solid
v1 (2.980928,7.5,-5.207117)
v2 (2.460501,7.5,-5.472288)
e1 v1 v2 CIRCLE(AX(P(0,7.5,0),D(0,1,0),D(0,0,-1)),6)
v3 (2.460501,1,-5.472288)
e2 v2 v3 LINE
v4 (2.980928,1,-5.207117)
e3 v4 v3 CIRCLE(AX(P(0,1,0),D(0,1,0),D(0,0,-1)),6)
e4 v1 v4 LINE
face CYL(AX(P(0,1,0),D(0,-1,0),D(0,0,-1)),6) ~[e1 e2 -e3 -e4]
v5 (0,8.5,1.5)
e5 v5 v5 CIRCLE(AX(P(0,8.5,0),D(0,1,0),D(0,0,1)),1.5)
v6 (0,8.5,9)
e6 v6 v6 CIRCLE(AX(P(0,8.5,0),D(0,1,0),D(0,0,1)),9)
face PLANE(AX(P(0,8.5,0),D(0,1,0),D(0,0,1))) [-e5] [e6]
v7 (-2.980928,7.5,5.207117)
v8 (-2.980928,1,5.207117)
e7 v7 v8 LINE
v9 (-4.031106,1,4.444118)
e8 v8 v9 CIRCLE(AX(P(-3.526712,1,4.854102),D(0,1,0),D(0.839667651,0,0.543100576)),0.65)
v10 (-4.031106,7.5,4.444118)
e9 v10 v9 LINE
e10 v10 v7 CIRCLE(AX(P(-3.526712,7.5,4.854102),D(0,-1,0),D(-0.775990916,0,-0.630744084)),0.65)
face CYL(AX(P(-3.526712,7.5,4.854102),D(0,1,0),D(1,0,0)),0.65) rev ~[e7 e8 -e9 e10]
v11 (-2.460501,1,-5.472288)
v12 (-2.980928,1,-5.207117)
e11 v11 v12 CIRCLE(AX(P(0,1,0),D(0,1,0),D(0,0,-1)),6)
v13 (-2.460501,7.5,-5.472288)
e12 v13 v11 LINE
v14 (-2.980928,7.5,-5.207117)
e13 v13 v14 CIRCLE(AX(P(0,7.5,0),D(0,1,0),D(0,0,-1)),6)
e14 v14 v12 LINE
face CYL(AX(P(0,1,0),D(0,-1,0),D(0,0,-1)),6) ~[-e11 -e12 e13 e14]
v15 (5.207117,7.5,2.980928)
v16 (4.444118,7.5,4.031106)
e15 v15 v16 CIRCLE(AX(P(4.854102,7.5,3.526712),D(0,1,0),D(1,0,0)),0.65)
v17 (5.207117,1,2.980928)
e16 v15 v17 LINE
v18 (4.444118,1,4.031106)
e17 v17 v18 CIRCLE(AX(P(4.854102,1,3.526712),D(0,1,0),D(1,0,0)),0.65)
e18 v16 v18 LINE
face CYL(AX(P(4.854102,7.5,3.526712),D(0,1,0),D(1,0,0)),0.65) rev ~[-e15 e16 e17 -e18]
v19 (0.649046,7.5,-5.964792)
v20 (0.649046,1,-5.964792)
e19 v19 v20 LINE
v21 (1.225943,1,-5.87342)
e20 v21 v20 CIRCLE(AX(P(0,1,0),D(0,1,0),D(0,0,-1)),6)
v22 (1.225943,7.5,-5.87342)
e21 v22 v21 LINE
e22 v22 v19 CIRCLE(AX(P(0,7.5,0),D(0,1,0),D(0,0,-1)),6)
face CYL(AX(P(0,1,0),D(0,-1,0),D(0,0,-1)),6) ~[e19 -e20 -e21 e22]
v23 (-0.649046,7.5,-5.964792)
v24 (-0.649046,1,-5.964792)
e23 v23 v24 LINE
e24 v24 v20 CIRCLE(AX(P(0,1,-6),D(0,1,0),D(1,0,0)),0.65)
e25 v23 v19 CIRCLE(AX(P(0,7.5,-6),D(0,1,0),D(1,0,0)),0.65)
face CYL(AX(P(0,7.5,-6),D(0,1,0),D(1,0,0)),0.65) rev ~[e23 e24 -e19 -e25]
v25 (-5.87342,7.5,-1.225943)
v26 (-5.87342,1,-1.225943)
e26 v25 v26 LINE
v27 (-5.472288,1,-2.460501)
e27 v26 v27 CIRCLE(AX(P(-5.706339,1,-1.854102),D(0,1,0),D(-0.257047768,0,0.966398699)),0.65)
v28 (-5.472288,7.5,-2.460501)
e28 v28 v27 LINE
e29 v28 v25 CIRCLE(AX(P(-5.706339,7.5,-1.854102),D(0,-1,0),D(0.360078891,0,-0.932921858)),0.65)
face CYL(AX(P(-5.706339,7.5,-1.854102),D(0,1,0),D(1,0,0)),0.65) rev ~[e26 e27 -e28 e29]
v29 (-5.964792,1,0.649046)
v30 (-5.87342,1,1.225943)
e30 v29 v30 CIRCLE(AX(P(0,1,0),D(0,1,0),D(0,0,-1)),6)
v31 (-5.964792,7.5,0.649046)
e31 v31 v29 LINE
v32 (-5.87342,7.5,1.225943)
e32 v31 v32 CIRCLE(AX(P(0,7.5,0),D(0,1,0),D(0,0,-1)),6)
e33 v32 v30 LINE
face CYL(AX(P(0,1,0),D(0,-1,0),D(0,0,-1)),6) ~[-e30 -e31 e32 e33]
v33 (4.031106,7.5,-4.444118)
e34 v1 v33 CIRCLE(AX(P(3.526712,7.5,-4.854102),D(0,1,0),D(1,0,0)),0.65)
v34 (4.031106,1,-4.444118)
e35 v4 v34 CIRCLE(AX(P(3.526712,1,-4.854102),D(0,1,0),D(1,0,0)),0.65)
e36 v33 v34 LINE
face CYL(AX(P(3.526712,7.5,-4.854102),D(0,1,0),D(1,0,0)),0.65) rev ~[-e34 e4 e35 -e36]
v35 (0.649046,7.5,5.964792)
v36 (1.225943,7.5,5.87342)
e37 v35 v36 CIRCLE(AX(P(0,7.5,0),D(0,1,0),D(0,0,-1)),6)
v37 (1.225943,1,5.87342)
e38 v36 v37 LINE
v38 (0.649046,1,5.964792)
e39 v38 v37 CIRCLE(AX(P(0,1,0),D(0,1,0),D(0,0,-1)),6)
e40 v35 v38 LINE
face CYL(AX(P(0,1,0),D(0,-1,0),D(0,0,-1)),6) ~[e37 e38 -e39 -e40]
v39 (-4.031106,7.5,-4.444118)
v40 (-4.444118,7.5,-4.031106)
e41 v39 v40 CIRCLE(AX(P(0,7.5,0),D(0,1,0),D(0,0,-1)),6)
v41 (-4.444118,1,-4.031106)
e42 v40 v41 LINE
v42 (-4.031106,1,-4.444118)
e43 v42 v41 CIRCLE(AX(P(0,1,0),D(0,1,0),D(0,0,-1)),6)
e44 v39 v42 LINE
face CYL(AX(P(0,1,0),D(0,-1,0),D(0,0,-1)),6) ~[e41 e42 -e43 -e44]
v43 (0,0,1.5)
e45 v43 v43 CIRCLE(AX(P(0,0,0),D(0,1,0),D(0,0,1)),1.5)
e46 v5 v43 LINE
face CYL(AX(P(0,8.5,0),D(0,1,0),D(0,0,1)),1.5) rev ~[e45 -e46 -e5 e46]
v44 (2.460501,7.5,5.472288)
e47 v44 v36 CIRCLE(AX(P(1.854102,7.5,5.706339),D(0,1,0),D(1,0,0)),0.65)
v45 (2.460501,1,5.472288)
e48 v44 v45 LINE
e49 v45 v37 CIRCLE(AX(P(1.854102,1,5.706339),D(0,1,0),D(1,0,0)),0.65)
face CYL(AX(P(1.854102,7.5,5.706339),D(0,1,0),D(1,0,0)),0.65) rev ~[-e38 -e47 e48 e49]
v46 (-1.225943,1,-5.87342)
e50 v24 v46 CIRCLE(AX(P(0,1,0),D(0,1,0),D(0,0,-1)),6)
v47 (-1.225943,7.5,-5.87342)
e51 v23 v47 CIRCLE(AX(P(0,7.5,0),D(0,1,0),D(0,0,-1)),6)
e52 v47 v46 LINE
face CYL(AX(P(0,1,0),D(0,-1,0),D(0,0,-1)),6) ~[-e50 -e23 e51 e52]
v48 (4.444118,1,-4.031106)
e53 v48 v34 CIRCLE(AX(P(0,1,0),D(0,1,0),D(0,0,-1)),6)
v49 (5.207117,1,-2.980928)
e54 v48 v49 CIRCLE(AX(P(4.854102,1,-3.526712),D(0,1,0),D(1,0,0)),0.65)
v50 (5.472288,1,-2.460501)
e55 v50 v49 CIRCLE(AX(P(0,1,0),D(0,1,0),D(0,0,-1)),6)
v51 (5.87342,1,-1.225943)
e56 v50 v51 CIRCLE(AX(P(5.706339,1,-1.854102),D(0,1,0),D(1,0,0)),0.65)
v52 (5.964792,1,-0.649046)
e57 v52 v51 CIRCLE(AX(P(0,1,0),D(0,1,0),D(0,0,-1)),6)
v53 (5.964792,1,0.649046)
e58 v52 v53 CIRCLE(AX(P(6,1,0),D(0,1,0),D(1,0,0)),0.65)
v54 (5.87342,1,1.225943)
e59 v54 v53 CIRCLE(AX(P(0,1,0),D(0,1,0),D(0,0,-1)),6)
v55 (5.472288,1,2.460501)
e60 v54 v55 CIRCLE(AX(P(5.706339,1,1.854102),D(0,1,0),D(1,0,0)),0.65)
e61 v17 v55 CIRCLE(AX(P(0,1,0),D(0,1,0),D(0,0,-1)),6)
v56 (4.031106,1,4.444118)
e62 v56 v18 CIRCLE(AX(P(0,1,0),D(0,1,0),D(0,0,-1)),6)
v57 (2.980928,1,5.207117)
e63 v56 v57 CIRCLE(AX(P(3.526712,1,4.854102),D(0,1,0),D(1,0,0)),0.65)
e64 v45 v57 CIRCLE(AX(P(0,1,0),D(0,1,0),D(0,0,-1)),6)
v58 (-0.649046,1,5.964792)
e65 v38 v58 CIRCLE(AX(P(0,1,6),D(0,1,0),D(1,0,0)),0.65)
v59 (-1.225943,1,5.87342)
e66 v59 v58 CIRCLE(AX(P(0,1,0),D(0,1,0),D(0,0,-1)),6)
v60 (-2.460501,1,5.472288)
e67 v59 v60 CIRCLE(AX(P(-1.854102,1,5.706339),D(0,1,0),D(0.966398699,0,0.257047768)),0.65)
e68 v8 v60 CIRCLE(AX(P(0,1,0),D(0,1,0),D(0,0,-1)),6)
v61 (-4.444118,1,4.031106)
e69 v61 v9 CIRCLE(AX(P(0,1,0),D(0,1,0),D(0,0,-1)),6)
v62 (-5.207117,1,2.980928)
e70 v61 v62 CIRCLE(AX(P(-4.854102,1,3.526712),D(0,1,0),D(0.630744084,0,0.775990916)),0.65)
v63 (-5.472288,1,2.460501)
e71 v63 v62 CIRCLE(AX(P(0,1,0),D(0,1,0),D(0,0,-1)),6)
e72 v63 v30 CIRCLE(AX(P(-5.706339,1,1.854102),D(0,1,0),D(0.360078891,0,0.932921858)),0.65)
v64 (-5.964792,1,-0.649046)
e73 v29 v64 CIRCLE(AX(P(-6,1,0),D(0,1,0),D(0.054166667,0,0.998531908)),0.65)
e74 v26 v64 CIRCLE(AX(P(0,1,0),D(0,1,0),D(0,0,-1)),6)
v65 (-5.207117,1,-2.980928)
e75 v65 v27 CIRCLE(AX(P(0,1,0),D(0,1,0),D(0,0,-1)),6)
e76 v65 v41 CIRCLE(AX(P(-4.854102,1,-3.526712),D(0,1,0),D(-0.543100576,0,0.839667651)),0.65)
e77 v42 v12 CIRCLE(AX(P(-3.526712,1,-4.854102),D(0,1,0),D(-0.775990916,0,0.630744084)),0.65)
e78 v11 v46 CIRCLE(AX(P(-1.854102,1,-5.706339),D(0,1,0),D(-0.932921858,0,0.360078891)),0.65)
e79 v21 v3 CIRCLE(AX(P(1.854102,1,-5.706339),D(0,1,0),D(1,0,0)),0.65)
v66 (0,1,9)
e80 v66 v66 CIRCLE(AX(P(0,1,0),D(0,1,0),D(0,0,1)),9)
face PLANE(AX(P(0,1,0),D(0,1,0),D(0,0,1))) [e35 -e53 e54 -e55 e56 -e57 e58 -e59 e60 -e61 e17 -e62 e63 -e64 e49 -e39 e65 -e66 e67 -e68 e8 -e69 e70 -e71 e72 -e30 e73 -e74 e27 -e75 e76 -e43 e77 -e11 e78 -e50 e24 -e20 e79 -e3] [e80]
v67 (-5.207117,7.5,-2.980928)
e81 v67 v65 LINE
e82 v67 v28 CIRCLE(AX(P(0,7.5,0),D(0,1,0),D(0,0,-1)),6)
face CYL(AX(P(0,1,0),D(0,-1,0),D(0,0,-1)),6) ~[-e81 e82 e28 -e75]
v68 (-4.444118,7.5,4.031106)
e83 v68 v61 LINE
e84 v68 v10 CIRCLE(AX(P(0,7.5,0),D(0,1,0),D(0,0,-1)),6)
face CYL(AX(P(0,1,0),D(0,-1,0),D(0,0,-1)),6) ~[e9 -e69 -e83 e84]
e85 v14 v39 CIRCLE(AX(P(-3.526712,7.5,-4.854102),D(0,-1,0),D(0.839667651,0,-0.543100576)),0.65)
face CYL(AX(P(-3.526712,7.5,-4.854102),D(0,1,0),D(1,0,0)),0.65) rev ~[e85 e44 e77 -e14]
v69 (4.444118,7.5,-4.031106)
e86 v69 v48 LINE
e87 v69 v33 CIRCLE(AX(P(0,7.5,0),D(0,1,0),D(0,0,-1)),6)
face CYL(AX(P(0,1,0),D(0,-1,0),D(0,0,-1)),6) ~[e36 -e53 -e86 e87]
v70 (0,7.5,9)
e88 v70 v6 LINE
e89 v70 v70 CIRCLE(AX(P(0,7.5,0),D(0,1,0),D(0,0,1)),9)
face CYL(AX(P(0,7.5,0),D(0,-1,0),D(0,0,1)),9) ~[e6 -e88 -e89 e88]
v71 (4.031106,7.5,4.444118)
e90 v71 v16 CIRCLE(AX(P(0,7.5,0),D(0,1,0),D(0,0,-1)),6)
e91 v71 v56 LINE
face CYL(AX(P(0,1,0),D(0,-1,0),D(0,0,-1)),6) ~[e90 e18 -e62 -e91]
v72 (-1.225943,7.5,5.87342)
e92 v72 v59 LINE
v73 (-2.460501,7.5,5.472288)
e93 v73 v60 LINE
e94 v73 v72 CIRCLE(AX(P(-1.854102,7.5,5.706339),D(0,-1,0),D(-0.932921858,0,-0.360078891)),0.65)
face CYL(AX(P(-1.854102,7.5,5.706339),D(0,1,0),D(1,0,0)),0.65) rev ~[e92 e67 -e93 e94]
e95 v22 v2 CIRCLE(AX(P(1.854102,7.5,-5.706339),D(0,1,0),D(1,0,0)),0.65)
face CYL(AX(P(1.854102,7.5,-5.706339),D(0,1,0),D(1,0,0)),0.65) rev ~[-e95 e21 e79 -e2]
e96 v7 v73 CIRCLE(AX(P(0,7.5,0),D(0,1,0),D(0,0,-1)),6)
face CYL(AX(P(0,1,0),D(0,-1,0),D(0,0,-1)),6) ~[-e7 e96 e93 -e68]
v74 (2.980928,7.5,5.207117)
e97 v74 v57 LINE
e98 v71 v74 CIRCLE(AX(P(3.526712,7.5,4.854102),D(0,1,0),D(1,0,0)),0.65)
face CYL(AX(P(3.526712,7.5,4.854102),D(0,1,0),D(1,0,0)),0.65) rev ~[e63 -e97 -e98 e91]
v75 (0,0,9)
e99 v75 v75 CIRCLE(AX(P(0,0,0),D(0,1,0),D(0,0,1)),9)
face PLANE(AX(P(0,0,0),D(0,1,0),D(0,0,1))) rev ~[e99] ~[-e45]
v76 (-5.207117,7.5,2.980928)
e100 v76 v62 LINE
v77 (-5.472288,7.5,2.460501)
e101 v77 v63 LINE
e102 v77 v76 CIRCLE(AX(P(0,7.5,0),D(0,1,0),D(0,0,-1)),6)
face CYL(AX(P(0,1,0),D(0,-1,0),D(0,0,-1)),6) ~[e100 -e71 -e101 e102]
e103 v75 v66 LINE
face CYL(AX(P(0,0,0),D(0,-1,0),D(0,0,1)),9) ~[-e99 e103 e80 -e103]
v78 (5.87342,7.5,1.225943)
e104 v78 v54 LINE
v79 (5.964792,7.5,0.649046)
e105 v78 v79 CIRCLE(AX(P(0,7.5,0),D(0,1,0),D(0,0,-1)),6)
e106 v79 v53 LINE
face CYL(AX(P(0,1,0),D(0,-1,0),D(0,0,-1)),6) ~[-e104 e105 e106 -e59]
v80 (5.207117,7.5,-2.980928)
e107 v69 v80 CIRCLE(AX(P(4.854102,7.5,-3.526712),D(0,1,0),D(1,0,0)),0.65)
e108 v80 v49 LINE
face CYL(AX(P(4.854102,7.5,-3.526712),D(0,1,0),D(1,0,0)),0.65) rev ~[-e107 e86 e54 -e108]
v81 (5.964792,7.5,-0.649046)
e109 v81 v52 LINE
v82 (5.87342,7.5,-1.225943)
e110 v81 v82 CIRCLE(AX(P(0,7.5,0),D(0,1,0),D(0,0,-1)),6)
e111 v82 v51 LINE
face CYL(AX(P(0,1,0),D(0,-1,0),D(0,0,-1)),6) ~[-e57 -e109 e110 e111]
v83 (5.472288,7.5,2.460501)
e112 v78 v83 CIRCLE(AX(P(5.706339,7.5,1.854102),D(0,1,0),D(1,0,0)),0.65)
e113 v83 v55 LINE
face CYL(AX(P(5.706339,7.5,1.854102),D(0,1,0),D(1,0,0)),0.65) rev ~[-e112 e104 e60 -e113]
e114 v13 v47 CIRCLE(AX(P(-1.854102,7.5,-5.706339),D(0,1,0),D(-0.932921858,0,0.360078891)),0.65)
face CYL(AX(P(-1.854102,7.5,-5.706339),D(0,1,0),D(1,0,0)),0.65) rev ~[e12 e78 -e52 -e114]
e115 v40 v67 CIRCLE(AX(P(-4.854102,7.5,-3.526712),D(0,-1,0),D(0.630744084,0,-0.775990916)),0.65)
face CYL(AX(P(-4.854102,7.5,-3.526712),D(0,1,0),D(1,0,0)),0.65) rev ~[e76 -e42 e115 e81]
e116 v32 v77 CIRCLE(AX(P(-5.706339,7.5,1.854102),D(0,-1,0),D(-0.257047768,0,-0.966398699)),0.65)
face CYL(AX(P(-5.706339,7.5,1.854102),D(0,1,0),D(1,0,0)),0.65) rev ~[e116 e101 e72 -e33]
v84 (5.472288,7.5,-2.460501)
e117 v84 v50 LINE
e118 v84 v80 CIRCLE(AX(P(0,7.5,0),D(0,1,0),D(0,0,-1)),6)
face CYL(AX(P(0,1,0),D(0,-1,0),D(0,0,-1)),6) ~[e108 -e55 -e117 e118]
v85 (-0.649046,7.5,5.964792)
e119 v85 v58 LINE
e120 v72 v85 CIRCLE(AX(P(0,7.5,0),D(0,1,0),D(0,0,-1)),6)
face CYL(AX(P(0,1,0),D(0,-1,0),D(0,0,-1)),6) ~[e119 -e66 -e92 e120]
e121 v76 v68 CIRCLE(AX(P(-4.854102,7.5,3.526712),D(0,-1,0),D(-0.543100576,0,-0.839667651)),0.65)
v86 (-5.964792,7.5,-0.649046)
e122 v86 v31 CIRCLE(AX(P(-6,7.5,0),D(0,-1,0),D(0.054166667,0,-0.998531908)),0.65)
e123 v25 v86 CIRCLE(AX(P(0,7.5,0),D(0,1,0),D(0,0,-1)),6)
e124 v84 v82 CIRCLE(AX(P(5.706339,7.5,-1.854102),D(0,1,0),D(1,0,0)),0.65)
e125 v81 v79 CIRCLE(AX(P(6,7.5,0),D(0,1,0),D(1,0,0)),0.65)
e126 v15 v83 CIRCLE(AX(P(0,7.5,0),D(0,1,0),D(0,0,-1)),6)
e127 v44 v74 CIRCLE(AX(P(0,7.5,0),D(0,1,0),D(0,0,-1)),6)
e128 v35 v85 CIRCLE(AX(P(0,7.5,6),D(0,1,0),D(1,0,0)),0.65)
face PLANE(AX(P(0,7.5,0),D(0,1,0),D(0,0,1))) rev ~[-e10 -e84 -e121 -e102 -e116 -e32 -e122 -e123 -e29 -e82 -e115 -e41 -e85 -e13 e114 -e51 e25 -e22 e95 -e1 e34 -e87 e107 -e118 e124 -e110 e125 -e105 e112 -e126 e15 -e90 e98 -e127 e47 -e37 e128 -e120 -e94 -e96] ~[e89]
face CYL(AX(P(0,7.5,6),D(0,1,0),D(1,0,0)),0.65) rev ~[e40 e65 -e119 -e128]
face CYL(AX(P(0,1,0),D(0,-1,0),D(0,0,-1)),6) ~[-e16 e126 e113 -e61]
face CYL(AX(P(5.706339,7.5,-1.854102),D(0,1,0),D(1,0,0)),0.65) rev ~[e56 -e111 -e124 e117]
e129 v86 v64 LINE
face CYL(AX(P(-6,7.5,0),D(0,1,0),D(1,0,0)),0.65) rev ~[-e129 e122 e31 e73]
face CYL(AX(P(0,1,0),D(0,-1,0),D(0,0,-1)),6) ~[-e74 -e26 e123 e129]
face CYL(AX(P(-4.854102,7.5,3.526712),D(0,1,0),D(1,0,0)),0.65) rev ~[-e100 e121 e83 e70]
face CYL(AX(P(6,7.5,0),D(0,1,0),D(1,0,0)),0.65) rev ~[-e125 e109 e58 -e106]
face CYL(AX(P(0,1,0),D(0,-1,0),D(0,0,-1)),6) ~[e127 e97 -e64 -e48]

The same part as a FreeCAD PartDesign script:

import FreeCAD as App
import Part
import Sketcher

V = App.Vector

doc = App.newDocument("Part")
body = doc.addObject("PartDesign::Body", "Body")

sketch1 = doc.addObject("Sketcher::SketchObject", "Sketch")
body.addObject(sketch1)
sketch1.AttachmentSupport = (doc.XZ_Plane, [""])
sketch1.MapMode = "FlatFace"
sketch1.addGeometry(Part.Circle(V(0, 0, 0), V(0, 0, 1), 9), False)
sketch1.addConstraint(Sketcher.Constraint("Coincident", 0, 3, -1, 1))
sketch1.addConstraint(Sketcher.Constraint("Diameter", 0, 18.0))
pad1 = doc.addObject("PartDesign::Pad", "Pad")
body.addObject(pad1)
pad1.Profile = sketch1
pad1.Length = 1
pad1.Reversed = True

sketch2 = doc.addObject("Sketcher::SketchObject", "Sketch001")
body.addObject(sketch2)
sketch2.AttachmentSupport = (doc.XZ_Plane, [""])
sketch2.MapMode = "FlatFace"
sketch2.AttachmentOffset = App.Placement(V(0, 0, -1), App.Rotation())
sketch2.addGeometry(Part.Circle(V(0, 0, 0), V(0, 0, 1), 6), False)
sketch2.addConstraint(Sketcher.Constraint("Coincident", 0, 3, -1, 1))
sketch2.addConstraint(Sketcher.Constraint("Diameter", 0, 12.0))
pad2 = doc.addObject("PartDesign::Pad", "Pad001")
body.addObject(pad2)
pad2.Profile = sketch2
pad2.Length = 6.5
pad2.Reversed = True

sketch3 = doc.addObject("Sketcher::SketchObject", "Sketch002")
body.addObject(sketch3)
sketch3.AttachmentSupport = (doc.XZ_Plane, [""])
sketch3.MapMode = "FlatFace"
sketch3.AttachmentOffset = App.Placement(V(0, 0, -7.5), App.Rotation())
sketch3.addGeometry(Part.Circle(V(0, -6, 0), V(0, 0, 1), 0.7), False)
sketch3.addGeometry(Part.Circle(V(1.9, -5.7, 0), V(0, 0, 1), 0.7), False)
sketch3.addGeometry(Part.Circle(V(3.5, -4.9, 0), V(0, 0, 1), 0.7), False)
sketch3.addGeometry(Part.Circle(V(4.9, -3.5, 0), V(0, 0, 1), 0.7), False)
sketch3.addGeometry(Part.Circle(V(5.7, -1.9, 0), V(0, 0, 1), 0.7), False)
sketch3.addGeometry(Part.Circle(V(6, 0, 0), V(0, 0, 1), 0.7), False)
sketch3.addGeometry(Part.Circle(V(5.7, 1.9, 0), V(0, 0, 1), 0.7), False)
sketch3.addGeometry(Part.Circle(V(4.9, 3.5, 0), V(0, 0, 1), 0.7), False)
sketch3.addGeometry(Part.Circle(V(3.5, 4.9, 0), V(0, 0, 1), 0.7), False)
sketch3.addGeometry(Part.Circle(V(1.9, 5.7, 0), V(0, 0, 1), 0.7), False)
sketch3.addGeometry(Part.Circle(V(0, 6, 0), V(0, 0, 1), 0.7), False)
sketch3.addGeometry(Part.Circle(V(-1.9, 5.7, 0), V(0, 0, 1), 0.7), False)
sketch3.addGeometry(Part.Circle(V(-3.5, 4.9, 0), V(0, 0, 1), 0.7), False)
sketch3.addGeometry(Part.Circle(V(-4.9, 3.5, 0), V(0, 0, 1), 0.7), False)
sketch3.addGeometry(Part.Circle(V(-5.7, 1.9, 0), V(0, 0, 1), 0.7), False)
sketch3.addGeometry(Part.Circle(V(-6, 0, 0), V(0, 0, 1), 0.7), False)
sketch3.addGeometry(Part.Circle(V(-5.7, -1.9, 0), V(0, 0, 1), 0.7), False)
sketch3.addGeometry(Part.Circle(V(-4.9, -3.5, 0), V(0, 0, 1), 0.7), False)
sketch3.addGeometry(Part.Circle(V(-3.5, -4.9, 0), V(0, 0, 1), 0.7), False)
sketch3.addGeometry(Part.Circle(V(-1.9, -5.7, 0), V(0, 0, 1), 0.7), False)
sketch3.addConstraint(Sketcher.Constraint("Equal", 0, 1))
sketch3.addConstraint(Sketcher.Constraint("Equal", 1, 2))
sketch3.addConstraint(Sketcher.Constraint("Equal", 2, 3))
sketch3.addConstraint(Sketcher.Constraint("Equal", 3, 4))
sketch3.addConstraint(Sketcher.Constraint("Equal", 4, 5))
sketch3.addConstraint(Sketcher.Constraint("Equal", 5, 6))
sketch3.addConstraint(Sketcher.Constraint("Equal", 6, 7))
sketch3.addConstraint(Sketcher.Constraint("Equal", 7, 8))
sketch3.addConstraint(Sketcher.Constraint("Equal", 8, 9))
sketch3.addConstraint(Sketcher.Constraint("Equal", 9, 10))
sketch3.addConstraint(Sketcher.Constraint("Equal", 10, 11))
sketch3.addConstraint(Sketcher.Constraint("Equal", 11, 12))
sketch3.addConstraint(Sketcher.Constraint("Equal", 12, 13))
sketch3.addConstraint(Sketcher.Constraint("Equal", 13, 14))
sketch3.addConstraint(Sketcher.Constraint("Equal", 14, 15))
sketch3.addConstraint(Sketcher.Constraint("Equal", 15, 16))
sketch3.addConstraint(Sketcher.Constraint("Equal", 16, 17))
sketch3.addConstraint(Sketcher.Constraint("Equal", 17, 18))
sketch3.addConstraint(Sketcher.Constraint("Equal", 18, 19))
sketch3.addConstraint(Sketcher.Constraint("Symmetric", 0, 3, 10, 3, -1, 1))
sketch3.addConstraint(Sketcher.Constraint("Symmetric", 1, 3, 11, 3, -1, 1))
sketch3.addConstraint(Sketcher.Constraint("Symmetric", 2, 3, 12, 3, -1, 1))
sketch3.addConstraint(Sketcher.Constraint("Symmetric", 3, 3, 13, 3, -1, 1))
sketch3.addConstraint(Sketcher.Constraint("Symmetric", 4, 3, 14, 3, -1, 1))
sketch3.addConstraint(Sketcher.Constraint("Symmetric", 5, 3, 15, 3, -1, 1))
sketch3.addConstraint(Sketcher.Constraint("Symmetric", 6, 3, 16, 3, -1, 1))
sketch3.addConstraint(Sketcher.Constraint("Symmetric", 7, 3, 17, 3, -1, 1))
sketch3.addConstraint(Sketcher.Constraint("Symmetric", 8, 3, 18, 3, -1, 1))
sketch3.addConstraint(Sketcher.Constraint("Symmetric", 9, 3, 19, 3, -1, 1))
sketch3.addConstraint(Sketcher.Constraint("Symmetric", 9, 3, 11, 3, -2))
sketch3.addConstraint(Sketcher.Constraint("Symmetric", 8, 3, 12, 3, -2))
sketch3.addConstraint(Sketcher.Constraint("Symmetric", 7, 3, 13, 3, -2))
sketch3.addConstraint(Sketcher.Constraint("Symmetric", 6, 3, 14, 3, -2))
sketch3.addConstraint(Sketcher.Constraint("PointOnObject", 0, 3, -2))
sketch3.addConstraint(Sketcher.Constraint("PointOnObject", 5, 3, -1))
sketch3.addConstraint(Sketcher.Constraint("Diameter", 0, 1.3))
sketch3.addConstraint(Sketcher.Constraint("DistanceY", 0, 3, -1, 1, 6.0))
sketch3.addConstraint(Sketcher.Constraint("DistanceX", -1, 1, 5, 3, 6.0))
sketch3.addConstraint(Sketcher.Constraint("DistanceX", 1, 3, 3, 3, 3.0))
sketch3.addConstraint(Sketcher.Constraint("DistanceY", 2, 3, 4, 3, 3.0))
sketch3.addConstraint(Sketcher.Constraint("DistanceX", -1, 1, 1, 3, 1.854102))
sketch3.addConstraint(Sketcher.Constraint("DistanceY", 2, 3, -1, 1, 4.854102))
sketch3.addConstraint(Sketcher.Constraint("DistanceY", 1, 3, -1, 1, 5.706339))
sketch3.addConstraint(Sketcher.Constraint("DistanceX", -1, 1, 2, 3, 3.526712))
sketch3.addConstraint(Sketcher.Constraint("DistanceY", 3, 3, -1, 1, 3.526712))
sketch3.addConstraint(Sketcher.Constraint("DistanceX", -1, 1, 4, 3, 5.706339))
pocket1 = doc.addObject("PartDesign::Pocket", "Pocket")
body.addObject(pocket1)
pocket1.Profile = sketch3
pocket1.Length = 6.5
pocket1.Reversed = True

sketch4 = doc.addObject("Sketcher::SketchObject", "Sketch003")
body.addObject(sketch4)
sketch4.AttachmentSupport = (doc.XZ_Plane, [""])
sketch4.MapMode = "FlatFace"
sketch4.AttachmentOffset = App.Placement(V(0, 0, -7.5), App.Rotation())
sketch4.addGeometry(Part.Circle(V(0, 0, 0), V(0, 0, 1), 9), False)
sketch4.addConstraint(Sketcher.Constraint("Coincident", 0, 3, -1, 1))
sketch4.addConstraint(Sketcher.Constraint("Diameter", 0, 18.0))
pad3 = doc.addObject("PartDesign::Pad", "Pad002")
body.addObject(pad3)
pad3.Profile = sketch4
pad3.Length = 1
pad3.Reversed = True

sketch5 = doc.addObject("Sketcher::SketchObject", "Sketch004")
body.addObject(sketch5)
sketch5.AttachmentSupport = (doc.XZ_Plane, [""])
sketch5.MapMode = "FlatFace"
sketch5.AttachmentOffset = App.Placement(V(0, 0, -8.5), App.Rotation())
sketch5.addGeometry(Part.Circle(V(0, 0, 0), V(0, 0, 1), 1.5), False)
sketch5.addConstraint(Sketcher.Constraint("Coincident", 0, 3, -1, 1))
sketch5.addConstraint(Sketcher.Constraint("Diameter", 0, 3.0))
pocket2 = doc.addObject("PartDesign::Pocket", "Pocket001")
body.addObject(pocket2)
pocket2.Profile = sketch5
pocket2.Type = "ThroughAll"
pocket2.Reversed = True

doc.recompute()
